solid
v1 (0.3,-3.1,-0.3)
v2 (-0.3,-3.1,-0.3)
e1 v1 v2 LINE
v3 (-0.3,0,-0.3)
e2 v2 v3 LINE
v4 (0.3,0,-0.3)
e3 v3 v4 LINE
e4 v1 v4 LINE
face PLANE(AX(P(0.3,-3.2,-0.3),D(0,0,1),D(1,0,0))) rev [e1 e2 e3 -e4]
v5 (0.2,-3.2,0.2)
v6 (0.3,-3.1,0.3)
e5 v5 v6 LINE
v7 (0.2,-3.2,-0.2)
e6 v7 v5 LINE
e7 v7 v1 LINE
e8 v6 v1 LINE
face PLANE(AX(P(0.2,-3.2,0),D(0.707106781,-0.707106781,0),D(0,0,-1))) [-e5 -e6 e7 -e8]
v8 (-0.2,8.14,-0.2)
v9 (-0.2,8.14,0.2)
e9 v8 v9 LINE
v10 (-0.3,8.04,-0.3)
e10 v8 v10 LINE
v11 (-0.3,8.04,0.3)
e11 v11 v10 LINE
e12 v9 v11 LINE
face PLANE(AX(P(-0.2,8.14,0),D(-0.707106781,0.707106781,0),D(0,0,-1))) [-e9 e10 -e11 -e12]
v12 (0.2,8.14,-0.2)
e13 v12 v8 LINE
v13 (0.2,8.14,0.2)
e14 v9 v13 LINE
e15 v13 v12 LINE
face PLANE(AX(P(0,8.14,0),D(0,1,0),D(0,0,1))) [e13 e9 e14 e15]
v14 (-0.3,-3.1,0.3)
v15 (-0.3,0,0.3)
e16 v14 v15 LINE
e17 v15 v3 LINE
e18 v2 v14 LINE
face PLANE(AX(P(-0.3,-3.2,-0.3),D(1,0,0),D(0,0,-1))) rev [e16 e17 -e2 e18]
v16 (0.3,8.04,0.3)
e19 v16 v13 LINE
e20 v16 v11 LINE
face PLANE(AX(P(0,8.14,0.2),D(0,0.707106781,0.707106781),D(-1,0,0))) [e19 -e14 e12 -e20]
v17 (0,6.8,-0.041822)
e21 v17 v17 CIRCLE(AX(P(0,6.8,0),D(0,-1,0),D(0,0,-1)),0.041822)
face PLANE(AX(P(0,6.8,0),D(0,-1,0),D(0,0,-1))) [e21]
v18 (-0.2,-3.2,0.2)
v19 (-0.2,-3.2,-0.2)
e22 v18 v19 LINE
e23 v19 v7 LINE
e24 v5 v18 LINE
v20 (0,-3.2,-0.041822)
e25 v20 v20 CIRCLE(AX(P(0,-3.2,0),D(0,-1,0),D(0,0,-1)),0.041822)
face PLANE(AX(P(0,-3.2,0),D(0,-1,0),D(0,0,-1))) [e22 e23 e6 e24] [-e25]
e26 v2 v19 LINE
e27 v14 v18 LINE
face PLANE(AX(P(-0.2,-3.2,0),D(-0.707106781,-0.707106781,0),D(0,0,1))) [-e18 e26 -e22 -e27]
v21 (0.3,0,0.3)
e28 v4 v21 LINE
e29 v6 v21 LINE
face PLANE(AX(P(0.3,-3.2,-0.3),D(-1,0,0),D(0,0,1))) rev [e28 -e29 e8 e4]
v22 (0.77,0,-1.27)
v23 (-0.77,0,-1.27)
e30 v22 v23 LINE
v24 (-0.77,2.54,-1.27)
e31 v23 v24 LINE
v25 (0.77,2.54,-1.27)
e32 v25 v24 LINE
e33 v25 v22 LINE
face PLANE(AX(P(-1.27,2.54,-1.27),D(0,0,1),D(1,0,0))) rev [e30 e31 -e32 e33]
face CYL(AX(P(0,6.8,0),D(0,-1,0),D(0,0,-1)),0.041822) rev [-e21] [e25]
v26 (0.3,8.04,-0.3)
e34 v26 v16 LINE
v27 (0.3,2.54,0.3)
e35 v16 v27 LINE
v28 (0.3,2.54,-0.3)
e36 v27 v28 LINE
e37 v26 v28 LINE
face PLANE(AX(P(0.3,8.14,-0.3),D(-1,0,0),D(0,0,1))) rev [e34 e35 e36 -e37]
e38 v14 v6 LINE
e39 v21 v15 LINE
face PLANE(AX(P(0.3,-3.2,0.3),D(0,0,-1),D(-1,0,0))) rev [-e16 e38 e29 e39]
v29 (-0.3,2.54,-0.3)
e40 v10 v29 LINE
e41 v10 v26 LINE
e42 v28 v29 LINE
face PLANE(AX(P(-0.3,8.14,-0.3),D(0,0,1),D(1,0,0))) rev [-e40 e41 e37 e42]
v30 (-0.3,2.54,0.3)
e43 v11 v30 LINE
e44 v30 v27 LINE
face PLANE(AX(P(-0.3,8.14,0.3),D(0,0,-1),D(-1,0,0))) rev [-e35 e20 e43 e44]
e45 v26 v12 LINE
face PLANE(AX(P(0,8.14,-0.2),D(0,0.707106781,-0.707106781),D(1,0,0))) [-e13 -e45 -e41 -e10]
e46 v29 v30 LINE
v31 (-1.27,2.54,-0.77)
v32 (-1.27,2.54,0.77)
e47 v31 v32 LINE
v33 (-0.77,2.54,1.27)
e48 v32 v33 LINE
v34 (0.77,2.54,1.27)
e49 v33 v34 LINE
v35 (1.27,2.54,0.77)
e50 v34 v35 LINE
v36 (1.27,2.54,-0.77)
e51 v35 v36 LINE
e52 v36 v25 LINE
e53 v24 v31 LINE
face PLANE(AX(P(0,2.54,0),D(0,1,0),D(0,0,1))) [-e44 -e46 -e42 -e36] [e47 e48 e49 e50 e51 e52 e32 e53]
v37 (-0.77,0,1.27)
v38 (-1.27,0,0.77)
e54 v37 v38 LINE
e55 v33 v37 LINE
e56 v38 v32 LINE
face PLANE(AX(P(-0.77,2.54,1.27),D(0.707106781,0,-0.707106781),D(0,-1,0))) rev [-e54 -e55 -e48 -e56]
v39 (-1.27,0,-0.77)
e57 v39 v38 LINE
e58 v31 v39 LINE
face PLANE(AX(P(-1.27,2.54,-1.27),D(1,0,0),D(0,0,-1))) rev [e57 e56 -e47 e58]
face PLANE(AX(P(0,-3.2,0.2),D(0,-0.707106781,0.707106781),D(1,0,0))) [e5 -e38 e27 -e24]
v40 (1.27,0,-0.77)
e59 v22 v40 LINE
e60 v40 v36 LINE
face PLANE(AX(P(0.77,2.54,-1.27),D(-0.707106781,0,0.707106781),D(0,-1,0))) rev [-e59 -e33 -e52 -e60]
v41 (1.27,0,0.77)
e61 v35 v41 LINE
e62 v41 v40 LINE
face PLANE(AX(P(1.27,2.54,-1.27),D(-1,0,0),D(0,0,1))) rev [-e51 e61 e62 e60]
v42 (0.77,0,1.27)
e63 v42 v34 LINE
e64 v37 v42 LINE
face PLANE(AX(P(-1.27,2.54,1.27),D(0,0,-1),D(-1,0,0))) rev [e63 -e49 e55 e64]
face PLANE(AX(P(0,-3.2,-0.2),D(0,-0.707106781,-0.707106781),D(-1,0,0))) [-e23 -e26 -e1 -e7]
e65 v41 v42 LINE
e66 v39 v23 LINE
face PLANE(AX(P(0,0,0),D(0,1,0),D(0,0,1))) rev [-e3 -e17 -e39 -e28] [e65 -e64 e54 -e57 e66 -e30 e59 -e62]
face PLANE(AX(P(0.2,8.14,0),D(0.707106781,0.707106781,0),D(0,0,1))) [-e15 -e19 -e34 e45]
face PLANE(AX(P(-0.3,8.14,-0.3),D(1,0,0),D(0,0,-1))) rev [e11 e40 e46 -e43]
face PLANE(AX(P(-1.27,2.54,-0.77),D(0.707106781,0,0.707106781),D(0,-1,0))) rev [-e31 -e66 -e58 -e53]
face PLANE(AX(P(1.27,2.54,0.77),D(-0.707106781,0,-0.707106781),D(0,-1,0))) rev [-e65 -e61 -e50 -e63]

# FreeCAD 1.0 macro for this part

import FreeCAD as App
import Part
import Sketcher
from FreeCAD import Vector


def edges_at(feature, points):
    """Names of the edges that pass closest to the given points."""
    edges = feature.Shape.Edges
    near = lambda p: min(range(len(edges)), key=lambda i: edges[i].distToShape(Part.Vertex(*p))[0])
    return sorted({f"Edge{near(p) + 1}" for p in points})


def add_polygon(sketch, points):
    """Adds a closed chain of lines whose ends are joined by coincident constraints."""
    first, n = sketch.GeometryCount, len(points)
    for a, b in zip(points, points[1:] + points[:1]):
        sketch.addGeometry(Part.LineSegment(App.Vector(*a, 0), App.Vector(*b, 0)), False)
    for i in range(n):
        sketch.addConstraint(Sketcher.Constraint("Coincident", first + i, 2, first + (i + 1) % n, 1))

doc = App.newDocument("Part")
body = doc.addObject("PartDesign::Body", "Body")

sketch1 = doc.addObject("Sketcher::SketchObject", "Sketch")
body.addObject(sketch1)
sketch1.AttachmentSupport = (doc.XZ_Plane, [""])
sketch1.MapMode = "FlatFace"
add_polygon(sketch1, [(-1.3, -1.3), (-1.3, 1.3), (1.3, 1.3), (1.3, -1.3)])
sketch1.addConstraint(Sketcher.Constraint("Vertical", 0))
sketch1.addConstraint(Sketcher.Constraint("Horizontal", 1))
sketch1.addConstraint(Sketcher.Constraint("Vertical", 2))
sketch1.addConstraint(Sketcher.Constraint("Horizontal", 3))
sketch1.addConstraint(Sketcher.Constraint("Symmetric", 0, 2, 2, 2, -1, 1))
sketch1.addConstraint(Sketcher.Constraint("Equal", 3, 0))
sketch1.addConstraint(Sketcher.Constraint("DistanceX", 1, 1, 1, 2, 2.54))
pad1 = doc.addObject("PartDesign::Pad", "Pad")
body.addObject(pad1)
pad1.Profile = sketch1
pad1.Length = 2.54
pad1.Reversed = True

sketch2 = doc.addObject("Sketcher::SketchObject", "Sketch001")
body.addObject(sketch2)
sketch2.AttachmentSupport = (doc.XZ_Plane, [""])
sketch2.MapMode = "FlatFace"
sketch2.AttachmentOffset = App.Placement(Vector(0, 0, -2.54), App.Rotation())
add_polygon(sketch2, [(-0.3, -0.3), (-0.3, 0.3), (0.3, 0.3), (0.3, -0.3)])
sketch2.addConstraint(Sketcher.Constraint("Vertical", 0))
sketch2.addConstraint(Sketcher.Constraint("Horizontal", 1))
sketch2.addConstraint(Sketcher.Constraint("Vertical", 2))
sketch2.addConstraint(Sketcher.Constraint("Horizontal", 3))
sketch2.addConstraint(Sketcher.Constraint("Symmetric", 0, 2, 2, 2, -1, 1))
sketch2.addConstraint(Sketcher.Constraint("Equal", 3, 0))
sketch2.addConstraint(Sketcher.Constraint("DistanceX", 1, 1, 1, 2, 0.6))
pad2 = doc.addObject("PartDesign::Pad", "Pad001")
body.addObject(pad2)
pad2.Profile = sketch2
pad2.Length = 5.6
pad2.Reversed = True

sketch3 = doc.addObject("Sketcher::SketchObject", "Sketch002")
body.addObject(sketch3)
sketch3.AttachmentSupport = (doc.XZ_Plane, [""])
sketch3.MapMode = "FlatFace"
add_polygon(sketch3, [(-0.3, 0.3), (-0.3, -0.3), (0.3, -0.3), (0.3, 0.3)])
sketch3.addConstraint(Sketcher.Constraint("Vertical", 0))
sketch3.addConstraint(Sketcher.Constraint("Horizontal", 1))
sketch3.addConstraint(Sketcher.Constraint("Vertical", 2))
sketch3.addConstraint(Sketcher.Constraint("Horizontal", 3))
sketch3.addConstraint(Sketcher.Constraint("Symmetric", 0, 2, 2, 2, -1, 1))
sketch3.addConstraint(Sketcher.Constraint("Equal", 3, 0))
sketch3.addConstraint(Sketcher.Constraint("DistanceX", 1, 1, 1, 2, 0.6))
pad3 = doc.addObject("PartDesign::Pad", "Pad002")
body.addObject(pad3)
pad3.Profile = sketch3
pad3.Length = 3.2
doc.recompute()

chamfer = doc.addObject("PartDesign::Chamfer", "Chamfer")
body.addObject(chamfer)
chamfer.Base = (pad3, edges_at(pad3, [
    (0.3, 8.14, 0),
    (0, 8.14, -0.3),
    (-0.3, 8.14, 0),
    (0, 8.14, 0.3),
    (-0.3, -3.2, 0),
    (0, -3.2, -0.3),
    (0.3, -3.2, 0),
    (0, -3.2, 0.3),
]))
chamfer.Size = 0.1
doc.recompute()

chamfer2 = doc.addObject("PartDesign::Chamfer", "Chamfer001")
body.addObject(chamfer2)
chamfer2.Base = (chamfer, edges_at(chamfer, [
    (1.27, 1.27, 1.27),
    (-1.27, 1.27, 1.27),
    (-1.27, 1.27, -1.27),
    (1.27, 1.27, -1.27),
]))
chamfer2.Size = 0.5

sketch4 = doc.addObject("Sketcher::SketchObject", "Sketch003")
body.addObject(sketch4)
sketch4.AttachmentSupport = (doc.XZ_Plane, [""])
sketch4.MapMode = "FlatFace"
sketch4.AttachmentOffset = App.Placement(Vector(0, 0, 3.2), App.Rotation())
sketch4.addGeometry(Part.Circle(Vector(0, 0, 0), Vector(0, 0, 1), 0.042), False)
sketch4.addConstraint(Sketcher.Constraint("Coincident", 0, 3, -1, 1))
sketch4.addConstraint(Sketcher.Constraint("Diameter", 0, 0.083645))
pocket1 = doc.addObject("PartDesign::Pocket", "Pocket")
body.addObject(pocket1)
pocket1.Profile = sketch4
pocket1.Length = 10

doc.recompute()
